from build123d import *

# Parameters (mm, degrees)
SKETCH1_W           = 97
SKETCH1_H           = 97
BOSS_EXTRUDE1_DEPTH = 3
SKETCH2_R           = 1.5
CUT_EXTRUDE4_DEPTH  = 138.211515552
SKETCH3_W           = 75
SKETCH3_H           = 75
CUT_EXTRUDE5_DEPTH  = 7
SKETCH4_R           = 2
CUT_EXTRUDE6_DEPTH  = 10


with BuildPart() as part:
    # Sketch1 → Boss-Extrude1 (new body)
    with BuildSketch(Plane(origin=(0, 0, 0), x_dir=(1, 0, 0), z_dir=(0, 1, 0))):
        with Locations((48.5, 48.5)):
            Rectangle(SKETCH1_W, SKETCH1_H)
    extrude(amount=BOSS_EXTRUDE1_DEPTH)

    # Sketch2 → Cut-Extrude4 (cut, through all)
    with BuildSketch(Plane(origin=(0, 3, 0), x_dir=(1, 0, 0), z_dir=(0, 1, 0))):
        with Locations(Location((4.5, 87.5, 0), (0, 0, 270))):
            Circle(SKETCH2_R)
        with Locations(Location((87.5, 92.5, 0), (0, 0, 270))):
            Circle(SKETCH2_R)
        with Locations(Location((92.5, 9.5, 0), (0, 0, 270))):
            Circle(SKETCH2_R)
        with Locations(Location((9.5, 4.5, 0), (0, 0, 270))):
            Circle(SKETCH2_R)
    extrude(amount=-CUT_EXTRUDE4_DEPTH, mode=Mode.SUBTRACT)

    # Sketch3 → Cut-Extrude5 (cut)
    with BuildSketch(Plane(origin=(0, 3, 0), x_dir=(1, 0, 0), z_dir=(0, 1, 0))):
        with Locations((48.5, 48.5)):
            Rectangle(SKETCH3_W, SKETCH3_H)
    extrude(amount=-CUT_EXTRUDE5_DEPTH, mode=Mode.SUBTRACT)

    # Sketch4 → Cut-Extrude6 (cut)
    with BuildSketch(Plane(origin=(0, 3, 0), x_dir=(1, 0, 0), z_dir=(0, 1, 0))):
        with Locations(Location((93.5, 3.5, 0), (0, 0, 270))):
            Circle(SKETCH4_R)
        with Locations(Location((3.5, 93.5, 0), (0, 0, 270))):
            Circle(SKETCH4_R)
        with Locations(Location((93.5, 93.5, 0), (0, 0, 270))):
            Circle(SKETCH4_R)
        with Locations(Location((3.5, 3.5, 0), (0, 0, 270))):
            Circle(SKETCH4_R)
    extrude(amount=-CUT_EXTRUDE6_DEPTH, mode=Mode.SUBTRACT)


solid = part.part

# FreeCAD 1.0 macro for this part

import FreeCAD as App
import Part
import Sketcher

V = App.Vector
Q = App.Units.Quantity

doc = App.newDocument("Part")
body = doc.addObject("PartDesign::Body", "Body")

# Sketch on XZ plane
sketch1 = body.newObject("Sketcher::SketchObject", "Sketch")
sketch1.AttachmentSupport = (doc.getObject("XZ_Plane"), [""])
sketch1.MapMode = "FlatFace"
sketch1.addGeometry(Part.LineSegment(V(0, -97, 0), V(0, 0, 0)), False)
sketch1.addGeometry(Part.LineSegment(V(0, 0, 0), V(97, 0, 0)), False)
sketch1.addGeometry(Part.LineSegment(V(97, 0, 0), V(97, -97, 0)), False)
sketch1.addGeometry(Part.LineSegment(V(97, -97, 0), V(0, -97, 0)), False)
sketch1.addConstraint(Sketcher.Constraint("Coincident", 0, 2, 1, 1))
sketch1.addConstraint(Sketcher.Constraint("Coincident", 1, 2, 2, 1))
sketch1.addConstraint(Sketcher.Constraint("Coincident", 2, 2, 3, 1))
sketch1.addConstraint(Sketcher.Constraint("Coincident", 3, 2, 0, 1))
sketch1.addConstraint(Sketcher.Constraint("Vertical", 0))
sketch1.addConstraint(Sketcher.Constraint("Horizontal", 1))
sketch1.addConstraint(Sketcher.Constraint("Vertical", 2))
sketch1.addConstraint(Sketcher.Constraint("Horizontal", 3))
sketch1.addConstraint(Sketcher.Constraint("Coincident", 0, 2, -1, 1))
sketch1.addConstraint(Sketcher.Constraint("Equal", 3, 0))
sketch1.addConstraint(Sketcher.Constraint("DistanceX", 1, 1, 1, 2, Q("97 mm")))
pad1 = body.newObject("PartDesign::Pad", "Pad")
pad1.Profile = sketch1
pad1.Length = 3
pad1.Reversed = True

# Sketch on XZ plane
sketch2 = body.newObject("Sketcher::SketchObject", "Sketch001")
sketch2.AttachmentSupport = (doc.getObject("XZ_Plane"), [""])
sketch2.MapMode = "FlatFace"
sketch2.AttachmentOffset = App.Placement(V(0, 0, -3), App.Rotation())
sketch2.addGeometry(Part.Circle(V(4.5, -87.5, 0), V(0, 0, 1), 1.5), False)
sketch2.addGeometry(Part.Circle(V(87.5, -92.5, 0), V(0, 0, 1), 1.5), False)
sketch2.addGeometry(Part.Circle(V(92.5, -9.5, 0), V(0, 0, 1), 1.5), False)
sketch2.addGeometry(Part.Circle(V(9.5, -4.5, 0), V(0, 0, 1), 1.5), False)
sketch2.addConstraint(Sketcher.Constraint("Equal", 0, 1))
sketch2.addConstraint(Sketcher.Constraint("Equal", 1, 2))
sketch2.addConstraint(Sketcher.Constraint("Equal", 2, 3))
sketch2.addConstraint(Sketcher.Constraint("Diameter", 0, Q("3 mm")))
sketch2.addConstraint(Sketcher.Constraint("DistanceX", 0, 3, 1, 3, Q("83 mm")))
sketch2.addConstraint(Sketcher.Constraint("DistanceY", 1, 3, 0, 3, Q("5 mm")))
sketch2.addConstraint(Sketcher.Constraint("DistanceX", 1, 3, 2, 3, Q("5 mm")))
sketch2.addConstraint(Sketcher.Constraint("DistanceY", 1, 3, 2, 3, Q("83 mm")))
sketch2.addConstraint(Sketcher.Constraint("DistanceX", 0, 3, 3, 3, Q("5 mm")))
sketch2.addConstraint(Sketcher.Constraint("DistanceY", 0, 3, 3, 3, Q("83 mm")))
sketch2.addConstraint(Sketcher.Constraint("DistanceX", -1, 1, 0, 3, Q("4.5 mm")))
sketch2.addConstraint(Sketcher.Constraint("DistanceY", 0, 3, -1, 1, Q("87.5 mm")))
pocket1 = body.newObject("PartDesign::Pocket", "Pocket")
pocket1.Profile = sketch2
pocket1.Type = "ThroughAll"
pocket1.Reversed = True

# Sketch on XZ plane
sketch3 = body.newObject("Sketcher::SketchObject", "Sketch002")
sketch3.AttachmentSupport = (doc.getObject("XZ_Plane"), [""])
sketch3.MapMode = "FlatFace"
sketch3.AttachmentOffset = App.Placement(V(0, 0, -3), App.Rotation())
sketch3.addGeometry(Part.LineSegment(V(11, -86, 0), V(11, -11, 0)), False)
sketch3.addGeometry(Part.LineSegment(V(11, -11, 0), V(86, -11, 0)), False)
sketch3.addGeometry(Part.LineSegment(V(86, -11, 0), V(86, -86, 0)), False)
sketch3.addGeometry(Part.LineSegment(V(86, -86, 0), V(11, -86, 0)), False)
sketch3.addConstraint(Sketcher.Constraint("Coincident", 0, 2, 1, 1))
sketch3.addConstraint(Sketcher.Constraint("Coincident", 1, 2, 2, 1))
sketch3.addConstraint(Sketcher.Constraint("Coincident", 2, 2, 3, 1))
sketch3.addConstraint(Sketcher.Constraint("Coincident", 3, 2, 0, 1))
sketch3.addConstraint(Sketcher.Constraint("Vertical", 0))
sketch3.addConstraint(Sketcher.Constraint("Horizontal", 1))
sketch3.addConstraint(Sketcher.Constraint("Vertical", 2))
sketch3.addConstraint(Sketcher.Constraint("Horizontal", 3))
sketch3.addConstraint(Sketcher.Constraint("Equal", 3, 0))
sketch3.addConstraint(Sketcher.Constraint("DistanceX", 1, 1, 1, 2, Q("75 mm")))
sketch3.addConstraint(Sketcher.Constraint("DistanceX", -1, 1, 0, 2, Q("11 mm")))
sketch3.addConstraint(Sketcher.Constraint("DistanceY", 0, 2, -1, 1, Q("11 mm")))
pocket2 = body.newObject("PartDesign::Pocket", "Pocket001")
pocket2.Profile = sketch3
pocket2.Length = 7
pocket2.Reversed = True

# Sketch on XZ plane
sketch4 = body.newObject("Sketcher::SketchObject", "Sketch003")
sketch4.AttachmentSupport = (doc.getObject("XZ_Plane"), [""])
sketch4.MapMode = "FlatFace"
sketch4.AttachmentOffset = App.Placement(V(0, 0, -3), App.Rotation())
sketch4.addGeometry(Part.Circle(V(93.5, -3.5, 0), V(0, 0, 1), 2), False)
sketch4.addGeometry(Part.Circle(V(3.5, -93.5, 0), V(0, 0, 1), 2), False)
sketch4.addGeometry(Part.Circle(V(93.5, -93.5, 0), V(0, 0, 1), 2), False)
sketch4.addGeometry(Part.Circle(V(3.5, -3.5, 0), V(0, 0, 1), 2), False)
sketch4.addConstraint(Sketcher.Constraint("Equal", 0, 1))
sketch4.addConstraint(Sketcher.Constraint("Equal", 1, 2))
sketch4.addConstraint(Sketcher.Constraint("Equal", 2, 3))
sketch4.addConstraint(Sketcher.Constraint("Horizontal", 1, 3, 2, 3))
sketch4.addConstraint(Sketcher.Constraint("Horizontal", 0, 3, 3, 3))
sketch4.addConstraint(Sketcher.Constraint("Vertical", 0, 3, 2, 3))
sketch4.addConstraint(Sketcher.Constraint("Vertical", 1, 3, 3, 3))
sketch4.addConstraint(Sketcher.Constraint("Diameter", 0, Q("4 mm")))
sketch4.addConstraint(Sketcher.Constraint("DistanceX", 1, 3, 0, 3, Q("90 mm")))
sketch4.addConstraint(Sketcher.Constraint("DistanceY", 1, 3, 0, 3, Q("90 mm")))
sketch4.addConstraint(Sketcher.Constraint("DistanceX", -1, 1, 0, 3, Q("93.5 mm")))
sketch4.addConstraint(Sketcher.Constraint("DistanceY", 0, 3, -1, 1, Q("3.5 mm")))
pocket3 = body.newObject("PartDesign::Pocket", "Pocket002")
pocket3.Profile = sketch4
pocket3.Length = 10
pocket3.Reversed = True

doc.recompute()
